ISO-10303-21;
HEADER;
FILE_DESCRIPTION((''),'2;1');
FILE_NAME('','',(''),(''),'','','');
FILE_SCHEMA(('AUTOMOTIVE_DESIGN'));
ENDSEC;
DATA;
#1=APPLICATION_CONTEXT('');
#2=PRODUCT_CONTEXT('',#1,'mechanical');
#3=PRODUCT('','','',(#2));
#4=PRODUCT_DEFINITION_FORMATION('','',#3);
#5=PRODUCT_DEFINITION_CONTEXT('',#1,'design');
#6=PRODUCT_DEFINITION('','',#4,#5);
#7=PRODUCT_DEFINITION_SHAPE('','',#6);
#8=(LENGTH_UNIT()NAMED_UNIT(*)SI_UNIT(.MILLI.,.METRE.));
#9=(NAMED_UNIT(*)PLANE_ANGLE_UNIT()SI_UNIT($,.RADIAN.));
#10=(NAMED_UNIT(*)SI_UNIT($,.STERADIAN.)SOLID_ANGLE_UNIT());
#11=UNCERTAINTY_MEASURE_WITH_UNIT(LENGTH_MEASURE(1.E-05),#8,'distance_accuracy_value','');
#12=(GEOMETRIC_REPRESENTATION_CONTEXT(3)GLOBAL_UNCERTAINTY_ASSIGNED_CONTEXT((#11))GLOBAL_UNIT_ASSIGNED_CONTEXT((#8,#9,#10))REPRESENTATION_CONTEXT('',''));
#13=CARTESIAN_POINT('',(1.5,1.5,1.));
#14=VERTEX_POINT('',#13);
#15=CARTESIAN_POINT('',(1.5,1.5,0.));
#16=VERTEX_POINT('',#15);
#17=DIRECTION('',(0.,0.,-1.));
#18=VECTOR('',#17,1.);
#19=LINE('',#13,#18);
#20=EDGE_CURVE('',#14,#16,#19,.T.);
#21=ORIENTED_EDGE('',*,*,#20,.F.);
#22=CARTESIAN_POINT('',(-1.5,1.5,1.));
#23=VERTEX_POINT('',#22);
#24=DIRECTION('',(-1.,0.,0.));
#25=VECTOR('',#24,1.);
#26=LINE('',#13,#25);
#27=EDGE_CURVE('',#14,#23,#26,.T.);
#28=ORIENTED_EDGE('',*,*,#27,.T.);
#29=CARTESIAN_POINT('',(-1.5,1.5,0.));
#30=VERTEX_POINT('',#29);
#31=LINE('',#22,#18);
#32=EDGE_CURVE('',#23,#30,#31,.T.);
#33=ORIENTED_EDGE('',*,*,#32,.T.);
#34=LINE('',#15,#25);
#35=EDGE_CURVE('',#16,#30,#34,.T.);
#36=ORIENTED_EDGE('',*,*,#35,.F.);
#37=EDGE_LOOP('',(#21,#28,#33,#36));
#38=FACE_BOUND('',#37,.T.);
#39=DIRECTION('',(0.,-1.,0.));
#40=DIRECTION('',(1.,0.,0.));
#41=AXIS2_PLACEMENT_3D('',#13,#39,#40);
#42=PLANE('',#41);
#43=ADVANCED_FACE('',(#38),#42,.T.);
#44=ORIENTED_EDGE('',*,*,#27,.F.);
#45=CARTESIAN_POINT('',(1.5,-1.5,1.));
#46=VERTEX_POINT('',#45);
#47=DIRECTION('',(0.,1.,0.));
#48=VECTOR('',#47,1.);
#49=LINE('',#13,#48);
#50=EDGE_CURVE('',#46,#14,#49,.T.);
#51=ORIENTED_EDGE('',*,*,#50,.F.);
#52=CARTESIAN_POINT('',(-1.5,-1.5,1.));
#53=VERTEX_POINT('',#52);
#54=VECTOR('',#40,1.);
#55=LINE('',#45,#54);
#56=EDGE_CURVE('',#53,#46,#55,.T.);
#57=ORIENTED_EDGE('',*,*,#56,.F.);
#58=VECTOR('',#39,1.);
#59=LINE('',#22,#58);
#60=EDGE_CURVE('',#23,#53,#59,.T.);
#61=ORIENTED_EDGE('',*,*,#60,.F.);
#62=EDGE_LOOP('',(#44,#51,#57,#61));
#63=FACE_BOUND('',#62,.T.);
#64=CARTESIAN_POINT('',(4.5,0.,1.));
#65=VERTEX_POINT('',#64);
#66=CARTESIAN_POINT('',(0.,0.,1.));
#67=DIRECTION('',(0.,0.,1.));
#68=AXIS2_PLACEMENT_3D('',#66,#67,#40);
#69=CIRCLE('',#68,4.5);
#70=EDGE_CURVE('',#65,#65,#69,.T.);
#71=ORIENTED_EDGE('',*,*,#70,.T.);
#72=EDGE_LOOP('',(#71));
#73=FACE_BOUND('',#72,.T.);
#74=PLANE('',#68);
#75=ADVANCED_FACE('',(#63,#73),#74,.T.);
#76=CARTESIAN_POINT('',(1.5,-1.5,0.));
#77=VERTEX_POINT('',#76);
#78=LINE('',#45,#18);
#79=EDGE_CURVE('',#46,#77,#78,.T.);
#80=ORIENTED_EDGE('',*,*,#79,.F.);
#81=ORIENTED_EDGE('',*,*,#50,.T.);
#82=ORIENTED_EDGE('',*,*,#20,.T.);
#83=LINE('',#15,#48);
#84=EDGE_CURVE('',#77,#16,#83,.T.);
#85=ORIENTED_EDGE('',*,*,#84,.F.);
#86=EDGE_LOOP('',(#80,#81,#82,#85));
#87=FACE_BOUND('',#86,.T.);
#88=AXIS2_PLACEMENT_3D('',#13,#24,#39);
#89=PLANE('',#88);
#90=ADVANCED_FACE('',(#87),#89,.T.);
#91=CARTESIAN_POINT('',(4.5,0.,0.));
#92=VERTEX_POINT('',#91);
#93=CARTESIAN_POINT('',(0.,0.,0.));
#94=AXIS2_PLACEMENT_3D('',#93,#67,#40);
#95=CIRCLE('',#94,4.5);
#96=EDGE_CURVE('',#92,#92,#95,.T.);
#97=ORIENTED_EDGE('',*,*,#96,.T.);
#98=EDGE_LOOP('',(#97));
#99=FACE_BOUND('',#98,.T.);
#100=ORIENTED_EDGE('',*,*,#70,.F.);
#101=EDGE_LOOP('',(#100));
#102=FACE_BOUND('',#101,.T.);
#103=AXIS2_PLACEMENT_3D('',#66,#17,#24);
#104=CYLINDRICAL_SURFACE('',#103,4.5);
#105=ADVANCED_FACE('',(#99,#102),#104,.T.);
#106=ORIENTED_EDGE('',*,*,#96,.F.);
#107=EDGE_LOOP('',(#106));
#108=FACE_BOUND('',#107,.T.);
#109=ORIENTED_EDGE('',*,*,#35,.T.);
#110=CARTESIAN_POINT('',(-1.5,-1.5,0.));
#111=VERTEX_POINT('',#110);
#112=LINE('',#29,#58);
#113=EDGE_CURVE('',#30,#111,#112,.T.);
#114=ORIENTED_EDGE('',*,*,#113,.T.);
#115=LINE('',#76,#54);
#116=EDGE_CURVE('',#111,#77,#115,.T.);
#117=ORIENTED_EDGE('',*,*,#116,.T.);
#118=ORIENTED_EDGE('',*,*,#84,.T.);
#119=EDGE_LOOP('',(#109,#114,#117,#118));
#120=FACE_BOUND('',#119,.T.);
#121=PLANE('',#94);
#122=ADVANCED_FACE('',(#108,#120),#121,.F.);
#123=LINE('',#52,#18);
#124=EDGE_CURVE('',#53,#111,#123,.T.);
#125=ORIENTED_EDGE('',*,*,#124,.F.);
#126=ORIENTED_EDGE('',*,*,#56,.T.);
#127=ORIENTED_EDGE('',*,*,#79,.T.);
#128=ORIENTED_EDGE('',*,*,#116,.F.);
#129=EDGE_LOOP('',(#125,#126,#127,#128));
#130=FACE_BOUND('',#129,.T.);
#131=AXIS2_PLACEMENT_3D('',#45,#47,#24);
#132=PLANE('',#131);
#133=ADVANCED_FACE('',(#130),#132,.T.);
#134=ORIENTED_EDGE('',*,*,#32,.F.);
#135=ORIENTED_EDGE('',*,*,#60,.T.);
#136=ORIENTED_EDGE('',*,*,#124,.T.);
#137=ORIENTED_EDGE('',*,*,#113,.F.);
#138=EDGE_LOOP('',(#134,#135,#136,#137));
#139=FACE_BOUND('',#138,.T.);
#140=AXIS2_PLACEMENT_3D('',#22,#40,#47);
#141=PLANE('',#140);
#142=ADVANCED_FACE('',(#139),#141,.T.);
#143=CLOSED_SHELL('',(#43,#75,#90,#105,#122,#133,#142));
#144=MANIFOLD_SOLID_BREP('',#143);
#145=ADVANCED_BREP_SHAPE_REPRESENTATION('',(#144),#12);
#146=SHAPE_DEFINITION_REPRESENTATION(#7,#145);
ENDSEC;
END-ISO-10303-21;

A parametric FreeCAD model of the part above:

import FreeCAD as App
import Part
import Sketcher

V = App.Vector


def add_polygon(sketch, points):
    """Adds a closed chain of lines whose ends are joined by coincident constraints."""
    first, n = sketch.GeometryCount, len(points)
    for a, b in zip(points, points[1:] + points[:1]):
        sketch.addGeometry(Part.LineSegment(App.Vector(*a, 0), App.Vector(*b, 0)), False)
    for i in range(n):
        sketch.addConstraint(Sketcher.Constraint("Coincident", first + i, 2, first + (i + 1) % n, 1))

doc = App.newDocument("Part")
body = doc.addObject("PartDesign::Body", "Body")

sketch1 = body.newObject("Sketcher::SketchObject", "Sketch")
sketch1.AttachmentSupport = (doc.getObject("XY_Plane"), [""])
sketch1.MapMode = "FlatFace"
sketch1.addGeometry(Part.Circle(V(0, 0, 0), V(0, 0, 1), 4.5), False)
add_polygon(sketch1, [(1.5, -1.5), (-1.5, -1.5), (-1.5, 1.5), (1.5, 1.5)])
sketch1.addConstraint(Sketcher.Constraint("Horizontal", 1))
sketch1.addConstraint(Sketcher.Constraint("Vertical", 2))
sketch1.addConstraint(Sketcher.Constraint("Horizontal", 3))
sketch1.addConstraint(Sketcher.Constraint("Vertical", 4))
sketch1.addConstraint(Sketcher.Constraint("Coincident", 0, 3, -1, 1))
sketch1.addConstraint(Sketcher.Constraint("Symmetric", 1, 2, 3, 2, -1, 1))
sketch1.addConstraint(Sketcher.Constraint("Equal", 3, 2))
sketch1.addConstraint(Sketcher.Constraint("Diameter", 0, 9.0))
sketch1.addConstraint(Sketcher.Constraint("DistanceX", 1, 2, 1, 1, 3.0))
pad1 = body.newObject("PartDesign::Pad", "Pad")
pad1.Profile = sketch1
pad1.Length = 1

doc.recompute()
